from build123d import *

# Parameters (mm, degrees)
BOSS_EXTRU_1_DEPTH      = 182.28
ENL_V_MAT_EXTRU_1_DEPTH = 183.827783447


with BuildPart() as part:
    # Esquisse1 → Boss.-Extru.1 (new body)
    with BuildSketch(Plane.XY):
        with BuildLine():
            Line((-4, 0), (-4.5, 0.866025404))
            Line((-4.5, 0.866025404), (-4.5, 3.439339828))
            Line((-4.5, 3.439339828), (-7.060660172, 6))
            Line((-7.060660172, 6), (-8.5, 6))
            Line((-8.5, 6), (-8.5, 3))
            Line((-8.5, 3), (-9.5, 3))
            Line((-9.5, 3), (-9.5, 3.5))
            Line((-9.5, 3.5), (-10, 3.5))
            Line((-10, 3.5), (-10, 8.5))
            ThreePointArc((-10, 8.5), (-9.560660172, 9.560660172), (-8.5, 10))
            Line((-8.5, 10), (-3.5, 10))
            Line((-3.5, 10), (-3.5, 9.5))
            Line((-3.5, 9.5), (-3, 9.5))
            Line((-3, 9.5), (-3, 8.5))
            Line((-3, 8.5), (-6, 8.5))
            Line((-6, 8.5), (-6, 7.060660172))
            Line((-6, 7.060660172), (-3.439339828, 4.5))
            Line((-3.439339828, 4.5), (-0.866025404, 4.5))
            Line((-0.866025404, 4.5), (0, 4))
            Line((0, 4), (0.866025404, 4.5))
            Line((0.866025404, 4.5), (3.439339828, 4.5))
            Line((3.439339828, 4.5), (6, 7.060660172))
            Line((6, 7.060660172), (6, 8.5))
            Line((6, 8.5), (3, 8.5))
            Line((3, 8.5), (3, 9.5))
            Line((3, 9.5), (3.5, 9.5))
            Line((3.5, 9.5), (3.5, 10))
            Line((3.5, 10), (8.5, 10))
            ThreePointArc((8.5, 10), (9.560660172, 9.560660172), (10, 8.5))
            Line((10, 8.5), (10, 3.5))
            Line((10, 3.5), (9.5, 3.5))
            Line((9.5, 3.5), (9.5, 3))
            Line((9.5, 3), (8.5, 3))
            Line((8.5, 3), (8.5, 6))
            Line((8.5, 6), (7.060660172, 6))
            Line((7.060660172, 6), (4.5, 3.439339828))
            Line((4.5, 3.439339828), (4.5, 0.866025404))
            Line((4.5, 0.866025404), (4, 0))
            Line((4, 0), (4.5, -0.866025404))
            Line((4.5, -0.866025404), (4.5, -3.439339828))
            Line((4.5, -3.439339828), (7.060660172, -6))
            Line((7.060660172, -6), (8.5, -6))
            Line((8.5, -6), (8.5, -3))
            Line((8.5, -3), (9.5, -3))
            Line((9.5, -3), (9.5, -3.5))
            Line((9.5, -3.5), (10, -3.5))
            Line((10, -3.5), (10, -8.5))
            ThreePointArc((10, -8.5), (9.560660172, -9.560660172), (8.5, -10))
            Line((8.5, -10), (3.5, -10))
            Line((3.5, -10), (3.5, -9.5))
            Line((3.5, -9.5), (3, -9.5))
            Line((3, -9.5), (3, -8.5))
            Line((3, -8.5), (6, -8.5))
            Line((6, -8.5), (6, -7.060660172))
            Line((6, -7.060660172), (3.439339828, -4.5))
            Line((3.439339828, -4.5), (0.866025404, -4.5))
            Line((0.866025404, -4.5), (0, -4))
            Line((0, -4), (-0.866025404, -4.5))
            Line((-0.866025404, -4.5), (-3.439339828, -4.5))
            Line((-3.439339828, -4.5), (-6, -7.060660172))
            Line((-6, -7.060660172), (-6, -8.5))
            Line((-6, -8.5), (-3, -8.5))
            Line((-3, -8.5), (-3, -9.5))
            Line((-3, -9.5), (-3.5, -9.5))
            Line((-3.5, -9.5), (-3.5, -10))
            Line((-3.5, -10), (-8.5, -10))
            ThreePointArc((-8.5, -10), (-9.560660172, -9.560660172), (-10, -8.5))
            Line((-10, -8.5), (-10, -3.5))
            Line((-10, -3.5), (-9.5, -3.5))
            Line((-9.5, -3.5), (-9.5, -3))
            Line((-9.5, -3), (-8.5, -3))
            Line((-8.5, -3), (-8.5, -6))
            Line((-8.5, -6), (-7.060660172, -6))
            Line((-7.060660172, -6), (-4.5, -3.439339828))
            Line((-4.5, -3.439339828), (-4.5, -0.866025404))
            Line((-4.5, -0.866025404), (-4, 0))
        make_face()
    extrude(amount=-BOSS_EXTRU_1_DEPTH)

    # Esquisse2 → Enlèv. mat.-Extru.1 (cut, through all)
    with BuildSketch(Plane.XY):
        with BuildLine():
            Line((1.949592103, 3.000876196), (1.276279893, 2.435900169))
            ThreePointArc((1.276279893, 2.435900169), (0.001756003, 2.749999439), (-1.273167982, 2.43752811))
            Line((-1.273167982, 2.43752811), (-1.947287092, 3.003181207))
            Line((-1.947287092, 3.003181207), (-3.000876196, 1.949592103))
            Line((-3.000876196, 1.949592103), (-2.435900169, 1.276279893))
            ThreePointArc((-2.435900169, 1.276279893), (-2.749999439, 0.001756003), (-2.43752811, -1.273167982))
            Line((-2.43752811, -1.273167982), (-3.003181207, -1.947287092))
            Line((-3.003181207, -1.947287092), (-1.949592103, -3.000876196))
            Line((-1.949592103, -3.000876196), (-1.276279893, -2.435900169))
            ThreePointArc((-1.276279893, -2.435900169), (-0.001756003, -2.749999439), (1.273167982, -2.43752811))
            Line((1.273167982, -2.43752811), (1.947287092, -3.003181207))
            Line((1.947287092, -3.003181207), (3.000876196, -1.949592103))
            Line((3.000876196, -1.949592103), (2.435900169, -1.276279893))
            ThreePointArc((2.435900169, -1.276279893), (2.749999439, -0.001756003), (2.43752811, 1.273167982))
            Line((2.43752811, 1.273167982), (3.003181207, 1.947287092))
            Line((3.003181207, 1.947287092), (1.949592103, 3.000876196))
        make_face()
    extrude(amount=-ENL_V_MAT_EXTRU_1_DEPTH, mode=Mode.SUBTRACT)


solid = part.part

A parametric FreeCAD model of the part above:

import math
import FreeCAD as App
import Part
import Sketcher
Q = App.Units.Quantity

doc = App.newDocument("Part")
body = doc.addObject("PartDesign::Body", "Body")

sketch1 = body.newObject("Sketcher::SketchObject", "Sketch")
sketch1.AttachmentSupport = (doc.getObject("XY_Plane"), [""])
sketch1.MapMode = "FlatFace"
sketch1.addGeometry([
    Part.LineSegment(App.Vector(-4.5, 0.866025, 0), App.Vector(-4, 0, 0)),
    Part.LineSegment(App.Vector(-4, 0, 0), App.Vector(-4.5, -0.866025, 0)),
    Part.LineSegment(App.Vector(-4.5, -0.866025, 0), App.Vector(-4.5, -3.43934, 0)),
    Part.LineSegment(App.Vector(-4.5, -3.43934, 0), App.Vector(-7.06066, -6, 0)),
    Part.LineSegment(App.Vector(-7.06066, -6, 0), App.Vector(-8.5, -6, 0)),
    Part.LineSegment(App.Vector(-8.5, -6, 0), App.Vector(-8.5, -3, 0)),
    Part.LineSegment(App.Vector(-8.5, -3, 0), App.Vector(-9.5, -3, 0)),
    Part.LineSegment(App.Vector(-9.5, -3, 0), App.Vector(-9.5, -3.5, 0)),
    Part.LineSegment(App.Vector(-9.5, -3.5, 0), App.Vector(-10, -3.5, 0)),
    Part.LineSegment(App.Vector(-10, -3.5, 0), App.Vector(-10, -8.5, 0)),
    Part.ArcOfCircle(Part.Circle(App.Vector(-8.5, -8.5, 0), App.Vector(0, 0, 1), 1.5), math.radians(180), math.radians(270)),
    Part.LineSegment(App.Vector(-8.5, -10, 0), App.Vector(-3.5, -10, 0)),
    Part.LineSegment(App.Vector(-3.5, -10, 0), App.Vector(-3.5, -9.5, 0)),
    Part.LineSegment(App.Vector(-3.5, -9.5, 0), App.Vector(-3, -9.5, 0)),
    Part.LineSegment(App.Vector(-3, -9.5, 0), App.Vector(-3, -8.5, 0)),
    Part.LineSegment(App.Vector(-3, -8.5, 0), App.Vector(-6, -8.5, 0)),
    Part.LineSegment(App.Vector(-6, -8.5, 0), App.Vector(-6, -7.06066, 0)),
    Part.LineSegment(App.Vector(-6, -7.06066, 0), App.Vector(-3.43934, -4.5, 0)),
    Part.LineSegment(App.Vector(-3.43934, -4.5, 0), App.Vector(-0.866025, -4.5, 0)),
    Part.LineSegment(App.Vector(-0.866025, -4.5, 0), App.Vector(0, -4, 0)),
    Part.LineSegment(App.Vector(0, -4, 0), App.Vector(0.866025, -4.5, 0)),
    Part.LineSegment(App.Vector(0.866025, -4.5, 0), App.Vector(3.43934, -4.5, 0)),
    Part.LineSegment(App.Vector(3.43934, -4.5, 0), App.Vector(6, -7.06066, 0)),
    Part.LineSegment(App.Vector(6, -7.06066, 0), App.Vector(6, -8.5, 0)),
    Part.LineSegment(App.Vector(6, -8.5, 0), App.Vector(3, -8.5, 0)),
    Part.LineSegment(App.Vector(3, -8.5, 0), App.Vector(3, -9.5, 0)),
    Part.LineSegment(App.Vector(3, -9.5, 0), App.Vector(3.5, -9.5, 0)),
    Part.LineSegment(App.Vector(3.5, -9.5, 0), App.Vector(3.5, -10, 0)),
    Part.LineSegment(App.Vector(3.5, -10, 0), App.Vector(8.5, -10, 0)),
    Part.ArcOfCircle(Part.Circle(App.Vector(8.5, -8.5, 0), App.Vector(0, 0, 1), 1.5), math.radians(-90), math.radians(0)),
    Part.LineSegment(App.Vector(10, -8.5, 0), App.Vector(10, -3.5, 0)),
    Part.LineSegment(App.Vector(10, -3.5, 0), App.Vector(9.5, -3.5, 0)),
    Part.LineSegment(App.Vector(9.5, -3.5, 0), App.Vector(9.5, -3, 0)),
    Part.LineSegment(App.Vector(9.5, -3, 0), App.Vector(8.5, -3, 0)),
    Part.LineSegment(App.Vector(8.5, -3, 0), App.Vector(8.5, -6, 0)),
    Part.LineSegment(App.Vector(8.5, -6, 0), App.Vector(7.06066, -6, 0)),
    Part.LineSegment(App.Vector(7.06066, -6, 0), App.Vector(4.5, -3.43934, 0)),
    Part.LineSegment(App.Vector(4.5, -3.43934, 0), App.Vector(4.5, -0.866025, 0)),
    Part.LineSegment(App.Vector(4.5, -0.866025, 0), App.Vector(4, 0, 0)),
    Part.LineSegment(App.Vector(4, 0, 0), App.Vector(4.5, 0.866025, 0)),
    Part.LineSegment(App.Vector(4.5, 0.866025, 0), App.Vector(4.5, 3.43934, 0)),
    Part.LineSegment(App.Vector(4.5, 3.43934, 0), App.Vector(7.06066, 6, 0)),
    Part.LineSegment(App.Vector(7.06066, 6, 0), App.Vector(8.5, 6, 0)),
    Part.LineSegment(App.Vector(8.5, 6, 0), App.Vector(8.5, 3, 0)),
    Part.LineSegment(App.Vector(8.5, 3, 0), App.Vector(9.5, 3, 0)),
    Part.LineSegment(App.Vector(9.5, 3, 0), App.Vector(9.5, 3.5, 0)),
    Part.LineSegment(App.Vector(9.5, 3.5, 0), App.Vector(10, 3.5, 0)),
    Part.LineSegment(App.Vector(10, 3.5, 0), App.Vector(10, 8.5, 0)),
    Part.ArcOfCircle(Part.Circle(App.Vector(8.5, 8.5, 0), App.Vector(0, 0, 1), 1.5), math.radians(0), math.radians(90)),
    Part.LineSegment(App.Vector(8.5, 10, 0), App.Vector(3.5, 10, 0)),
    Part.LineSegment(App.Vector(3.5, 10, 0), App.Vector(3.5, 9.5, 0)),
    Part.LineSegment(App.Vector(3.5, 9.5, 0), App.Vector(3, 9.5, 0)),
    Part.LineSegment(App.Vector(3, 9.5, 0), App.Vector(3, 8.5, 0)),
    Part.LineSegment(App.Vector(3, 8.5, 0), App.Vector(6, 8.5, 0)),
    Part.LineSegment(App.Vector(6, 8.5, 0), App.Vector(6, 7.06066, 0)),
    Part.LineSegment(App.Vector(6, 7.06066, 0), App.Vector(3.43934, 4.5, 0)),
    Part.LineSegment(App.Vector(3.43934, 4.5, 0), App.Vector(0.866025, 4.5, 0)),
    Part.LineSegment(App.Vector(0.866025, 4.5, 0), App.Vector(0, 4, 0)),
    Part.LineSegment(App.Vector(0, 4, 0), App.Vector(-0.866025, 4.5, 0)),
    Part.LineSegment(App.Vector(-0.866025, 4.5, 0), App.Vector(-3.43934, 4.5, 0)),
    Part.LineSegment(App.Vector(-3.43934, 4.5, 0), App.Vector(-6, 7.06066, 0)),
    Part.LineSegment(App.Vector(-6, 7.06066, 0), App.Vector(-6, 8.5, 0)),
    Part.LineSegment(App.Vector(-6, 8.5, 0), App.Vector(-3, 8.5, 0)),
    Part.LineSegment(App.Vector(-3, 8.5, 0), App.Vector(-3, 9.5, 0)),
    Part.LineSegment(App.Vector(-3, 9.5, 0), App.Vector(-3.5, 9.5, 0)),
    Part.LineSegment(App.Vector(-3.5, 9.5, 0), App.Vector(-3.5, 10, 0)),
    Part.LineSegment(App.Vector(-3.5, 10, 0), App.Vector(-8.5, 10, 0)),
    Part.ArcOfCircle(Part.Circle(App.Vector(-8.5, 8.5, 0), App.Vector(0, 0, 1), 1.5), math.radians(90), math.radians(180)),
    Part.LineSegment(App.Vector(-10, 8.5, 0), App.Vector(-10, 3.5, 0)),
    Part.LineSegment(App.Vector(-10, 3.5, 0), App.Vector(-9.5, 3.5, 0)),
    Part.LineSegment(App.Vector(-9.5, 3.5, 0), App.Vector(-9.5, 3, 0)),
    Part.LineSegment(App.Vector(-9.5, 3, 0), App.Vector(-8.5, 3, 0)),
    Part.LineSegment(App.Vector(-8.5, 3, 0), App.Vector(-8.5, 6, 0)),
    Part.LineSegment(App.Vector(-8.5, 6, 0), App.Vector(-7.06066, 6, 0)),
    Part.LineSegment(App.Vector(-7.06066, 6, 0), App.Vector(-4.5, 3.43934, 0)),
    Part.LineSegment(App.Vector(-4.5, 3.43934, 0), App.Vector(-4.5, 0.866025, 0)),
], False)
sketch1.addConstraint([
    Sketcher.Constraint("Coincident", 0, 2, 1, 1),
    Sketcher.Constraint("Coincident", 1, 2, 2, 1),
    Sketcher.Constraint("Coincident", 2, 2, 3, 1),
    Sketcher.Constraint("Coincident", 3, 2, 4, 1),
    Sketcher.Constraint("Coincident", 4, 2, 5, 1),
    Sketcher.Constraint("Coincident", 5, 2, 6, 1),
    Sketcher.Constraint("Coincident", 6, 2, 7, 1),
    Sketcher.Constraint("Coincident", 7, 2, 8, 1),
    Sketcher.Constraint("Coincident", 8, 2, 9, 1),
    Sketcher.Constraint("Tangent", 9, 2, 10, 1),
    Sketcher.Constraint("Tangent", 10, 2, 11, 1),
    Sketcher.Constraint("Coincident", 11, 2, 12, 1),
    Sketcher.Constraint("Coincident", 12, 2, 13, 1),
    Sketcher.Constraint("Coincident", 13, 2, 14, 1),
    Sketcher.Constraint("Coincident", 14, 2, 15, 1),
    Sketcher.Constraint("Coincident", 15, 2, 16, 1),
    Sketcher.Constraint("Coincident", 16, 2, 17, 1),
    Sketcher.Constraint("Coincident", 17, 2, 18, 1),
    Sketcher.Constraint("Coincident", 18, 2, 19, 1),
    Sketcher.Constraint("Coincident", 19, 2, 20, 1),
    Sketcher.Constraint("Coincident", 20, 2, 21, 1),
    Sketcher.Constraint("Coincident", 21, 2, 22, 1),
    Sketcher.Constraint("Coincident", 22, 2, 23, 1),
    Sketcher.Constraint("Coincident", 23, 2, 24, 1),
    Sketcher.Constraint("Coincident", 24, 2, 25, 1),
    Sketcher.Constraint("Coincident", 25, 2, 26, 1),
    Sketcher.Constraint("Coincident", 26, 2, 27, 1),
    Sketcher.Constraint("Coincident", 27, 2, 28, 1),
    Sketcher.Constraint("Tangent", 28, 2, 29, 1),
    Sketcher.Constraint("Tangent", 29, 2, 30, 1),
    Sketcher.Constraint("Coincident", 30, 2, 31, 1),
    Sketcher.Constraint("Coincident", 31, 2, 32, 1),
    Sketcher.Constraint("Coincident", 32, 2, 33, 1),
    Sketcher.Constraint("Coincident", 33, 2, 34, 1),
    Sketcher.Constraint("Coincident", 34, 2, 35, 1),
    Sketcher.Constraint("Coincident", 35, 2, 36, 1),
    Sketcher.Constraint("Coincident", 36, 2, 37, 1),
    Sketcher.Constraint("Coincident", 37, 2, 38, 1),
    Sketcher.Constraint("Coincident", 38, 2, 39, 1),
    Sketcher.Constraint("Coincident", 39, 2, 40, 1),
    Sketcher.Constraint("Coincident", 40, 2, 41, 1),
    Sketcher.Constraint("Coincident", 41, 2, 42, 1),
    Sketcher.Constraint("Coincident", 42, 2, 43, 1),
    Sketcher.Constraint("Coincident", 43, 2, 44, 1),
    Sketcher.Constraint("Coincident", 44, 2, 45, 1),
    Sketcher.Constraint("Coincident", 45, 2, 46, 1),
    Sketcher.Constraint("Coincident", 46, 2, 47, 1),
    Sketcher.Constraint("Tangent", 47, 2, 48, 1),
    Sketcher.Constraint("Tangent", 48, 2, 49, 1),
    Sketcher.Constraint("Coincident", 49, 2, 50, 1),
    Sketcher.Constraint("Coincident", 50, 2, 51, 1),
    Sketcher.Constraint("Coincident", 51, 2, 52, 1),
    Sketcher.Constraint("Coincident", 52, 2, 53, 1),
    Sketcher.Constraint("Coincident", 53, 2, 54, 1),
    Sketcher.Constraint("Coincident", 54, 2, 55, 1),
    Sketcher.Constraint("Coincident", 55, 2, 56, 1),
    Sketcher.Constraint("Coincident", 56, 2, 57, 1),
    Sketcher.Constraint("Coincident", 57, 2, 58, 1),
    Sketcher.Constraint("Coincident", 58, 2, 59, 1),
    Sketcher.Constraint("Coincident", 59, 2, 60, 1),
    Sketcher.Constraint("Coincident", 60, 2, 61, 1),
    Sketcher.Constraint("Coincident", 61, 2, 62, 1),
    Sketcher.Constraint("Coincident", 62, 2, 63, 1),
    Sketcher.Constraint("Coincident", 63, 2, 64, 1),
    Sketcher.Constraint("Coincident", 64, 2, 65, 1),
    Sketcher.Constraint("Coincident", 65, 2, 66, 1),
    Sketcher.Constraint("Tangent", 66, 2, 67, 1),
    Sketcher.Constraint("Tangent", 67, 2, 68, 1),
    Sketcher.Constraint("Coincident", 68, 2, 69, 1),
    Sketcher.Constraint("Coincident", 69, 2, 70, 1),
    Sketcher.Constraint("Coincident", 70, 2, 71, 1),
    Sketcher.Constraint("Coincident", 71, 2, 72, 1),
    Sketcher.Constraint("Coincident", 72, 2, 73, 1),
    Sketcher.Constraint("Coincident", 73, 2, 74, 1),
    Sketcher.Constraint("Coincident", 74, 2, 75, 1),
    Sketcher.Constraint("Coincident", 75, 2, 0, 1),
    Sketcher.Constraint("Vertical", 2),
    Sketcher.Constraint("Horizontal", 4),
    Sketcher.Constraint("Vertical", 5),
    Sketcher.Constraint("Horizontal", 6),
    Sketcher.Constraint("Vertical", 7),
    Sketcher.Constraint("Horizontal", 8),
    Sketcher.Constraint("Vertical", 9),
    Sketcher.Constraint("Horizontal", 11),
    Sketcher.Constraint("Vertical", 12),
    Sketcher.Constraint("Horizontal", 13),
    Sketcher.Constraint("Vertical", 14),
    Sketcher.Constraint("Horizontal", 15),
    Sketcher.Constraint("Vertical", 16),
    Sketcher.Constraint("Horizontal", 18),
    Sketcher.Constraint("Horizontal", 21),
    Sketcher.Constraint("Vertical", 23),
    Sketcher.Constraint("Horizontal", 24),
    Sketcher.Constraint("Vertical", 25),
    Sketcher.Constraint("Horizontal", 26),
    Sketcher.Constraint("Vertical", 27),
    Sketcher.Constraint("Horizontal", 28),
    Sketcher.Constraint("Vertical", 30),
    Sketcher.Constraint("Horizontal", 31),
    Sketcher.Constraint("Vertical", 32),
    Sketcher.Constraint("Horizontal", 33),
    Sketcher.Constraint("Vertical", 34),
    Sketcher.Constraint("Horizontal", 35),
    Sketcher.Constraint("Vertical", 37),
    Sketcher.Constraint("Vertical", 40),
    Sketcher.Constraint("Horizontal", 42),
    Sketcher.Constraint("Vertical", 43),
    Sketcher.Constraint("Horizontal", 44),
    Sketcher.Constraint("Vertical", 45),
    Sketcher.Constraint("Horizontal", 46),
    Sketcher.Constraint("Vertical", 47),
    Sketcher.Constraint("Horizontal", 49),
    Sketcher.Constraint("Vertical", 50),
    Sketcher.Constraint("Horizontal", 51),
    Sketcher.Constraint("Vertical", 52),
    Sketcher.Constraint("Horizontal", 53),
    Sketcher.Constraint("Vertical", 54),
    Sketcher.Constraint("Horizontal", 56),
    Sketcher.Constraint("Horizontal", 59),
    Sketcher.Constraint("Vertical", 61),
    Sketcher.Constraint("Horizontal", 62),
    Sketcher.Constraint("Vertical", 63),
    Sketcher.Constraint("Horizontal", 64),
    Sketcher.Constraint("Vertical", 65),
    Sketcher.Constraint("Horizontal", 66),
    Sketcher.Constraint("Vertical", 68),
    Sketcher.Constraint("Horizontal", 69),
    Sketcher.Constraint("Vertical", 70),
    Sketcher.Constraint("Horizontal", 71),
    Sketcher.Constraint("Vertical", 72),
    Sketcher.Constraint("Horizontal", 73),
    Sketcher.Constraint("Vertical", 75),
    Sketcher.Constraint("Equal", 10, 29),
    Sketcher.Constraint("Equal", 29, 48),
    Sketcher.Constraint("Equal", 48, 67),
    Sketcher.Constraint("Symmetric", 10, 3, 48, 3, -1, 1),
    Sketcher.Constraint("Symmetric", 29, 3, 67, 3, -1, 1),
    Sketcher.Constraint("Symmetric", 0, 2, 38, 2, -1, 1),
    Sketcher.Constraint("Symmetric", 1, 2, 39, 2, -1, 1),
    Sketcher.Constraint("Symmetric", 3, 2, 41, 2, -1, 1),
    Sketcher.Constraint("Symmetric", 5, 2, 43, 2, -1, 1),
    Sketcher.Constraint("Symmetric", 7, 2, 45, 2, -1, 1),
    Sketcher.Constraint("Symmetric", 12, 2, 50, 2, -1, 1),
    Sketcher.Constraint("Symmetric", 14, 2, 52, 2, -1, 1),
    Sketcher.Constraint("Symmetric", 16, 2, 54, 2, -1, 1),
    Sketcher.Constraint("Symmetric", 17, 2, 55, 2, -1, 1),
    Sketcher.Constraint("Symmetric", 19, 2, 57, 2, -1, 1),
    Sketcher.Constraint("Symmetric", 20, 2, 58, 2, -1, 1),
    Sketcher.Constraint("Symmetric", 22, 2, 60, 2, -1, 1),
    Sketcher.Constraint("Symmetric", 24, 2, 62, 2, -1, 1),
    Sketcher.Constraint("Symmetric", 26, 2, 64, 2, -1, 1),
    Sketcher.Constraint("Symmetric", 31, 2, 69, 2, -1, 1),
    Sketcher.Constraint("Symmetric", 33, 2, 71, 2, -1, 1),
    Sketcher.Constraint("Symmetric", 35, 2, 73, 2, -1, 1),
    Sketcher.Constraint("Symmetric", 36, 2, 74, 2, -1, 1),
    Sketcher.Constraint("Symmetric", 10, 3, 29, 3, -2),
    Sketcher.Constraint("Symmetric", 18, 2, 20, 2, -2),
    Sketcher.Constraint("Symmetric", 16, 2, 22, 2, -2),
    Sketcher.Constraint("Symmetric", 14, 2, 24, 2, -2),
    Sketcher.Constraint("Symmetric", 12, 2, 26, 2, -2),
    Sketcher.Constraint("Symmetric", 7, 2, 31, 2, -2),
    Sketcher.Constraint("Symmetric", 5, 2, 33, 2, -2),
    Sketcher.Constraint("Symmetric", 3, 2, 35, 2, -2),
    Sketcher.Constraint("Symmetric", 2, 2, 36, 2, -2),
    Sketcher.Constraint("PointOnObject", 0, 2, -1),
    Sketcher.Constraint("PointOnObject", 19, 2, -2),
    Sketcher.Constraint("Parallel", 3, 17),
    Sketcher.Constraint("Perpendicular", 0, 19),
    Sketcher.Constraint("Perpendicular", 1, 20),
    Sketcher.Constraint("Perpendicular", 17, 22),
    Sketcher.Constraint("Parallel", 22, 36),
    Sketcher.Constraint("Perpendicular", 19, 38),
    Sketcher.Constraint("Perpendicular", 36, 41),
    Sketcher.Constraint("Perpendicular", 38, 57),
    Sketcher.Constraint("Perpendicular", 55, 60),
    Sketcher.Constraint("Horizontal", 9, 2, 14, 2),
    Sketcher.Constraint("Vertical", 67, 3, 4, 2),
    Sketcher.Constraint("Equal", 8, 13),
    Sketcher.Constraint("Equal", 59, 2),
    Sketcher.Constraint("Equal", 62, 5),
    Sketcher.Constraint("Equal", 69, 7),
    Sketcher.Constraint("Equal", 66, 9),
    Sketcher.Constraint("Equal", 7, 12),
    Sketcher.Constraint("Equal", 73, 16),
    Sketcher.Constraint("Equal", 3, 17),
    Sketcher.Constraint("Equal", 1, 19),
    Sketcher.Constraint("Radius", 10, Q("1.5 mm")),
    Sketcher.Constraint("DistanceX", 6, 2, 6, 1, Q("1 mm")),
    Sketcher.Constraint("DistanceX", 11, 1, 11, 2, Q("5 mm")),
    Sketcher.Constraint("DistanceX", 15, 2, 15, 1, Q("3 mm")),
    Sketcher.Constraint("Angle", 0, Q("-60 deg")),
    Sketcher.Constraint("Distance", 0, Q("1 mm")),
    Sketcher.Constraint("DistanceX", 0, 2, -1, 1, Q("4 mm")),
    Sketcher.Constraint("DistanceY", 3, 2, -1, 1, Q("6 mm")),
    Sketcher.Constraint("DistanceX", 4, 2, 4, 1, Q("1.43934 mm")),
])
pad1 = body.newObject("PartDesign::Pad", "Pad")
pad1.Profile = sketch1
pad1.Length = 182.28
pad1.Reversed = True

sketch2 = body.newObject("Sketcher::SketchObject", "Sketch001")
sketch2.AttachmentSupport = (doc.getObject("XY_Plane"), [""])
sketch2.MapMode = "FlatFace"
sketch2.addGeometry([
    Part.LineSegment(App.Vector(1.949592, 3.000876, 0), App.Vector(1.27628, 2.4359, 0)),
    Part.ArcOfCircle(Part.Circle(App.Vector(0, 0, 0), App.Vector(0, 0, 1), 2.75), math.radians(62.347894), math.radians(117.578934)),
    Part.LineSegment(App.Vector(-1.273168, 2.437528, 0), App.Vector(-1.947287, 3.003181, 0)),
    Part.LineSegment(App.Vector(-1.947287, 3.003181, 0), App.Vector(-3.000876, 1.949592, 0)),
    Part.LineSegment(App.Vector(-3.000876, 1.949592, 0), App.Vector(-2.4359, 1.27628, 0)),
    Part.ArcOfCircle(Part.Circle(App.Vector(0, 0, 0), App.Vector(0, 0, 1), 2.75), math.radians(152.347894), math.radians(207.578934)),
    Part.LineSegment(App.Vector(-2.437528, -1.273168, 0), App.Vector(-3.003181, -1.947287, 0)),
    Part.LineSegment(App.Vector(-3.003181, -1.947287, 0), App.Vector(-1.949592, -3.000876, 0)),
    Part.LineSegment(App.Vector(-1.949592, -3.000876, 0), App.Vector(-1.27628, -2.4359, 0)),
    Part.ArcOfCircle(Part.Circle(App.Vector(0, 0, 0), App.Vector(0, 0, 1), 2.75), math.radians(-117.652106), math.radians(-62.421066)),
    Part.LineSegment(App.Vector(1.273168, -2.437528, 0), App.Vector(1.947287, -3.003181, 0)),
    Part.LineSegment(App.Vector(1.947287, -3.003181, 0), App.Vector(3.000876, -1.949592, 0)),
    Part.LineSegment(App.Vector(3.000876, -1.949592, 0), App.Vector(2.4359, -1.27628, 0)),
    Part.ArcOfCircle(Part.Circle(App.Vector(0, 0, 0), App.Vector(0, 0, 1), 2.75), math.radians(-27.652106), math.radians(27.578934)),
    Part.LineSegment(App.Vector(2.437528, 1.273168, 0), App.Vector(3.003181, 1.947287, 0)),
    Part.LineSegment(App.Vector(3.003181, 1.947287, 0), App.Vector(1.949592, 3.000876, 0)),
], False)
sketch2.addConstraint([
    Sketcher.Constraint("Coincident", 0, 2, 1, 1),
    Sketcher.Constraint("Coincident", 1, 2, 2, 1),
    Sketcher.Constraint("Coincident", 2, 2, 3, 1),
    Sketcher.Constraint("Coincident", 3, 2, 4, 1),
    Sketcher.Constraint("Coincident", 4, 2, 5, 1),
    Sketcher.Constraint("Coincident", 5, 2, 6, 1),
    Sketcher.Constraint("Coincident", 6, 2, 7, 1),
    Sketcher.Constraint("Coincident", 7, 2, 8, 1),
    Sketcher.Constraint("Coincident", 8, 2, 9, 1),
    Sketcher.Constraint("Coincident", 9, 2, 10, 1),
    Sketcher.Constraint("Coincident", 10, 2, 11, 1),
    Sketcher.Constraint("Coincident", 11, 2, 12, 1),
    Sketcher.Constraint("Coincident", 12, 2, 13, 1),
    Sketcher.Constraint("Coincident", 13, 2, 14, 1),
    Sketcher.Constraint("Coincident", 14, 2, 15, 1),
    Sketcher.Constraint("Coincident", 15, 2, 0, 1),
    Sketcher.Constraint("Coincident", 1, 3, -1, 1),
    Sketcher.Constraint("Coincident", 5, 3, -1, 1),
    Sketcher.Constraint("Coincident", 9, 3, -1, 1),
    Sketcher.Constraint("Coincident", 13, 3, -1, 1),
    Sketcher.Constraint("Equal", 1, 5),
    Sketcher.Constraint("Equal", 5, 9),
    Sketcher.Constraint("Equal", 9, 13),
    Sketcher.Constraint("Symmetric", 2, 2, 10, 2, -1, 1),
    Sketcher.Constraint("Symmetric", 3, 2, 11, 2, -1, 1),
    Sketcher.Constraint("Symmetric", 6, 2, 14, 2, -1, 1),
    Sketcher.Constraint("Symmetric", 7, 2, 15, 2, -1, 1),
    Sketcher.Constraint("Perpendicular", 0, 4),
    Sketcher.Constraint("Perpendicular", 2, 6),
    Sketcher.Constraint("Perpendicular", 3, 7),
    Sketcher.Constraint("Perpendicular", 4, 8),
    Sketcher.Constraint("Perpendicular", 6, 10),
    Sketcher.Constraint("Perpendicular", 8, 12),
    Sketcher.Constraint("Perpendicular", 10, 14),
    Sketcher.Constraint("Equal", 0, 4),
    Sketcher.Constraint("Equal", 2, 6),
    Sketcher.Constraint("Equal", 3, 7),
    Sketcher.Constraint("Angle", 0, Q("-140 deg")),
    Sketcher.Constraint("Angle", 2, Q("140 deg")),
    Sketcher.Constraint("Angle", 3, Q("-135 deg")),
    Sketcher.Constraint("Radius", 1, Q("2.75 mm")),
    Sketcher.Constraint("Distance", 2, Q("0.88 mm")),
    Sketcher.Constraint("Distance", 3, Q("1.49 mm")),
    Sketcher.Constraint("DistanceY", -1, 1, 0, 2, Q("2.4359 mm")),
])
pocket1 = body.newObject("PartDesign::Pocket", "Pocket")
pocket1.Profile = sketch2
pocket1.Type = "ThroughAll"

doc.recompute()
